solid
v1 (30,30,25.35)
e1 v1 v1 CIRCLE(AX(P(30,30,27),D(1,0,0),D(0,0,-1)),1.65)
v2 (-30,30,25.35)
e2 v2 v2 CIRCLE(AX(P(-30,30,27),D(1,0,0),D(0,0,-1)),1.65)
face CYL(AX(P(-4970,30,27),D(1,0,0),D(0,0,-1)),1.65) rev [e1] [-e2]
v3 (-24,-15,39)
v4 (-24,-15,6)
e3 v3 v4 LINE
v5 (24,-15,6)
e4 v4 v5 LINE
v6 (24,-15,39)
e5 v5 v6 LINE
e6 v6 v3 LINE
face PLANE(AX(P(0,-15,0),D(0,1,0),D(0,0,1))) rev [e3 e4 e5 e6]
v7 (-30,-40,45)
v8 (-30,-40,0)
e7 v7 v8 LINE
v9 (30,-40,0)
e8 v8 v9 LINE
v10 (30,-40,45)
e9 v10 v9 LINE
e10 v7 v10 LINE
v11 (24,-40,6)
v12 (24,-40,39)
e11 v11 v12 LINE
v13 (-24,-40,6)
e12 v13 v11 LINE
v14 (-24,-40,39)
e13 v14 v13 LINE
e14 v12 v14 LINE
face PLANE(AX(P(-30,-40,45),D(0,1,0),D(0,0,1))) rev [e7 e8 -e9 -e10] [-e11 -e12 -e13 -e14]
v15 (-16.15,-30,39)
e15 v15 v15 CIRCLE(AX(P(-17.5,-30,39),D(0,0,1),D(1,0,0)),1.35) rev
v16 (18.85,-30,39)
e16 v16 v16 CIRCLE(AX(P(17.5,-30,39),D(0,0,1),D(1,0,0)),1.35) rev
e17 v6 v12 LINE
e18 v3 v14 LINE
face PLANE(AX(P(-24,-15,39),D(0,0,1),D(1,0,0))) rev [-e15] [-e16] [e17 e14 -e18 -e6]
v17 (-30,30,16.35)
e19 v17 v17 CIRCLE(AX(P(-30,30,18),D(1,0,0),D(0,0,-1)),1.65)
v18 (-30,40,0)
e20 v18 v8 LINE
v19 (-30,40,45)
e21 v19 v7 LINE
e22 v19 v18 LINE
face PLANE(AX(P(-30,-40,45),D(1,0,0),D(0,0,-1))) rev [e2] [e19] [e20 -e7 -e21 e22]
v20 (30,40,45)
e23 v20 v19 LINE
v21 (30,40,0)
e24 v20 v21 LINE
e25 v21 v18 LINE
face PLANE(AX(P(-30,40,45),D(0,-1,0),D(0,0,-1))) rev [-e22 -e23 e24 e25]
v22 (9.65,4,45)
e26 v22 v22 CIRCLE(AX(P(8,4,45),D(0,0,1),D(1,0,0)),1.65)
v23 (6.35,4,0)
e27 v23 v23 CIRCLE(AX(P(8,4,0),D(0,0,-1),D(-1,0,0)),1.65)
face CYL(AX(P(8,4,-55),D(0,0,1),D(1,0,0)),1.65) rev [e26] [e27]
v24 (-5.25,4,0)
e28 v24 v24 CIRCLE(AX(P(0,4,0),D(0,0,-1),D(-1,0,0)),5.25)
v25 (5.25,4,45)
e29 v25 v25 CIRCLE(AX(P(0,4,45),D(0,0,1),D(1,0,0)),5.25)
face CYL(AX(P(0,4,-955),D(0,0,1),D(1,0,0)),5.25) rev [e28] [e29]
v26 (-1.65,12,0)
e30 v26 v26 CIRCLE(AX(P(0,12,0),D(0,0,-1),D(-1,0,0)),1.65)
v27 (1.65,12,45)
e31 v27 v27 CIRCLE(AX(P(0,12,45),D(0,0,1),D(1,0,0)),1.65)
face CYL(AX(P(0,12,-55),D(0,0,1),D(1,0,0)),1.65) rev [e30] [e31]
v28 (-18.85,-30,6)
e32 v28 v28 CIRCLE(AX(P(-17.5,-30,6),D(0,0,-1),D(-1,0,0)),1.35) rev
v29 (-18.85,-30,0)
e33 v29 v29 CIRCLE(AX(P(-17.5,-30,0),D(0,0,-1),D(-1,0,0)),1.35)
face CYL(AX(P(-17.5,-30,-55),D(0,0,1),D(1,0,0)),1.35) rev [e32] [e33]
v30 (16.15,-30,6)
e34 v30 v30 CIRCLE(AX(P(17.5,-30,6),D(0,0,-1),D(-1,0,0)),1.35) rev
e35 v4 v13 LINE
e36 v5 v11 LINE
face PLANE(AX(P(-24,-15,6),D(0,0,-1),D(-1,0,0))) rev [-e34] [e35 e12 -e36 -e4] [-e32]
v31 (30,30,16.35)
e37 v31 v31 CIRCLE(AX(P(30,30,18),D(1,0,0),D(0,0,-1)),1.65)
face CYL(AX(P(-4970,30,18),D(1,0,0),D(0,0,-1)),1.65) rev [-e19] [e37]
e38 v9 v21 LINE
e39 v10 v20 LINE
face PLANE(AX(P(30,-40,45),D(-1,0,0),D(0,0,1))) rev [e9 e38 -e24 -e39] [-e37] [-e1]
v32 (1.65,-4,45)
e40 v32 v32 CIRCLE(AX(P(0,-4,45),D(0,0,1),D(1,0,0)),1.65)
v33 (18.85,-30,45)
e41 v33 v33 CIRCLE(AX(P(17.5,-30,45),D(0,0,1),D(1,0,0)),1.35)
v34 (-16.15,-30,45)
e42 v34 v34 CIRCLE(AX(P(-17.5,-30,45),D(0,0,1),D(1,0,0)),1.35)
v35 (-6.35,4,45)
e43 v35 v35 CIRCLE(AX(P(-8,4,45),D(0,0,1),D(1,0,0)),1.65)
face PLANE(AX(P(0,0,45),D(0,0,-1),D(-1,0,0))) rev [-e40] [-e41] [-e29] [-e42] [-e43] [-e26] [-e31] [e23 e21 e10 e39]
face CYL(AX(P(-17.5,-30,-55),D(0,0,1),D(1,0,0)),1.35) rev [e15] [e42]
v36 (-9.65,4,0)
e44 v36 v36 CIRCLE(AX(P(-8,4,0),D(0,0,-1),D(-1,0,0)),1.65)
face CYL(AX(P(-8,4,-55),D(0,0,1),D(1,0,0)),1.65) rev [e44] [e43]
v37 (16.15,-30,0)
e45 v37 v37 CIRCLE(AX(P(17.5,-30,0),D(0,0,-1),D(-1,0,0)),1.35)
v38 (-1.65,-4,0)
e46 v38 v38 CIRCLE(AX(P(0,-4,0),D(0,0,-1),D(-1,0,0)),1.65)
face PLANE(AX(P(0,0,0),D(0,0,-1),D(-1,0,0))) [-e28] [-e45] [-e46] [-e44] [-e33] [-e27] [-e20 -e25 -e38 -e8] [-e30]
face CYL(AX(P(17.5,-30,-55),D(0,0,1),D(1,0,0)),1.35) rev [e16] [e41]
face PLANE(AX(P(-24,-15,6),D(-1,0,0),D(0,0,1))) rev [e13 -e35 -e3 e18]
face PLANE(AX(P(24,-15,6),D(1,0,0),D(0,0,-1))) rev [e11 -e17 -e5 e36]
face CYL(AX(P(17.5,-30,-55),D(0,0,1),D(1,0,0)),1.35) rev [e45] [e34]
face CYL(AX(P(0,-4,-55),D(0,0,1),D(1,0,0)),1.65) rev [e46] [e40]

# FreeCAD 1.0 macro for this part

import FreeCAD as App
import Part
import Sketcher
Q = App.Units.Quantity


def add_polygon(sketch, points):
    """Adds a closed chain of lines whose ends are joined by coincident constraints."""
    first, n = sketch.GeometryCount, len(points)
    for a, b in zip(points, points[1:] + points[:1]):
        sketch.addGeometry(Part.LineSegment(App.Vector(*a, 0), App.Vector(*b, 0)), False)
    for i in range(n):
        sketch.addConstraint(Sketcher.Constraint("Coincident", first + i, 2, first + (i + 1) % n, 1))

doc = App.newDocument("Part")
params = doc.addObject("Spreadsheet::Sheet", "Params")
for row, (alias, value) in enumerate([
    ("sketch1_width", "60 mm"),
    ("sketch1_height", "80 mm"),
    ("pad1_length", "45 mm"),
    ("sketch2_diameter", "2.7 mm"),
    ("pocket1_length", "100 mm"),
    ("sketch3_diameter", "3.3 mm"),
    ("pocket2_length", "100 mm"),
    ("sketch4_diameter", "10.5 mm"),
    ("pocket3_length", "1000 mm"),
    ("sketch5_width", "48 mm"),
    ("sketch5_height", "33 mm"),
    ("pocket4_length", "25 mm"),
    ("sketch6_diameter", "3.3 mm"),
    ("pocket5_length", "5000 mm"),
], start=1):
    params.set(f"A{row}", alias)
    params.set(f"B{row}", "=" + value)
    params.setAlias(f"B{row}", alias)

body = doc.addObject("PartDesign::Body", "Body")

# Sketch on XY plane
sketch1 = doc.addObject("Sketcher::SketchObject", "Sketch")
body.addObject(sketch1)
sketch1.AttachmentSupport = (doc.XY_Plane, [""])
sketch1.MapMode = "FlatFace"
add_polygon(sketch1, [(-30, 40), (-30, -40), (30, -40), (30, 40)])  # lines 0-3
sketch1.addConstraint([
    Sketcher.Constraint("Vertical", 0),
    Sketcher.Constraint("Horizontal", 1),
    Sketcher.Constraint("Vertical", 2),
    Sketcher.Constraint("Horizontal", 3),
    Sketcher.Constraint("Symmetric", 0, 2, 2, 2, -1, 1),
    Sketcher.Constraint("DistanceX", 1, 1, 1, 2, Q("60 mm")),
    Sketcher.Constraint("DistanceY", 0, 2, 0, 1, Q("80 mm")),
])
sketch1.setExpression("Constraints[9]", "Params.sketch1_width")
sketch1.setExpression("Constraints[10]", "Params.sketch1_height")
pad1 = doc.addObject("PartDesign::Pad", "Pad")
body.addObject(pad1)
pad1.Profile = sketch1
pad1.setExpression("Length", "Params.pad1_length")

# Sketch on XY plane
sketch2 = doc.addObject("Sketcher::SketchObject", "Sketch001")
body.addObject(sketch2)
sketch2.AttachmentSupport = (doc.XY_Plane, [""])
sketch2.MapMode = "FlatFace"
sketch2.AttachmentOffset = App.Placement(App.Vector(0, 0, 45), App.Rotation())
sketch2.addGeometry([
    Part.Circle(App.Vector(17.5, -30, 0), App.Vector(0, 0, 1), 1.4),
    Part.Circle(App.Vector(-17.5, -30, 0), App.Vector(0, 0, 1), 1.4),
], False)
sketch2.addConstraint([
    Sketcher.Constraint("Equal", 0, 1),
    Sketcher.Constraint("Symmetric", 0, 3, 1, 3, -2),
    Sketcher.Constraint("Diameter", 0, Q("2.7 mm")),
    Sketcher.Constraint("DistanceY", 0, 3, -1, 1, Q("30 mm")),
    Sketcher.Constraint("DistanceX", 1, 3, 0, 3, Q("35 mm")),
])
sketch2.setExpression("Constraints[2]", "Params.sketch2_diameter")
pocket1 = doc.addObject("PartDesign::Pocket", "Pocket")
body.addObject(pocket1)
pocket1.Profile = sketch2
pocket1.setExpression("Length", "Params.pocket1_length")

# Sketch on XY plane
sketch3 = doc.addObject("Sketcher::SketchObject", "Sketch002")
body.addObject(sketch3)
sketch3.AttachmentSupport = (doc.XY_Plane, [""])
sketch3.MapMode = "FlatFace"
sketch3.AttachmentOffset = App.Placement(App.Vector(0, 0, 45), App.Rotation())
sketch3.addGeometry([
    Part.Circle(App.Vector(8, 4, 0), App.Vector(0, 0, 1), 1.6),
    Part.Circle(App.Vector(0, 12, 0), App.Vector(0, 0, 1), 1.6),
    Part.Circle(App.Vector(-8, 4, 0), App.Vector(0, 0, 1), 1.6),
    Part.Circle(App.Vector(0, -4, 0), App.Vector(0, 0, 1), 1.6),
], False)
sketch3.addConstraint([
    Sketcher.Constraint("Equal", 0, 1),
    Sketcher.Constraint("Equal", 1, 2),
    Sketcher.Constraint("Equal", 2, 3),
    Sketcher.Constraint("Symmetric", 0, 3, 2, 3, -2),
    Sketcher.Constraint("PointOnObject", 1, 3, -2),
    Sketcher.Constraint("PointOnObject", 3, 3, -2),
    Sketcher.Constraint("Diameter", 0, Q("3.3 mm")),
    Sketcher.Constraint("DistanceX", -1, 1, 0, 3, Q("8 mm")),
    Sketcher.Constraint("DistanceY", -1, 1, 0, 3, Q("4 mm")),
    Sketcher.Constraint("DistanceY", -1, 1, 1, 3, Q("12 mm")),
    Sketcher.Constraint("DistanceY", 3, 3, -1, 1, Q("4 mm")),
])
sketch3.setExpression("Constraints[6]", "Params.sketch3_diameter")
pocket2 = doc.addObject("PartDesign::Pocket", "Pocket001")
body.addObject(pocket2)
pocket2.Profile = sketch3
pocket2.setExpression("Length", "Params.pocket2_length")

# Sketch on XY plane
sketch4 = doc.addObject("Sketcher::SketchObject", "Sketch003")
body.addObject(sketch4)
sketch4.AttachmentSupport = (doc.XY_Plane, [""])
sketch4.MapMode = "FlatFace"
sketch4.AttachmentOffset = App.Placement(App.Vector(0, 0, 45), App.Rotation())
sketch4.addGeometry(Part.Circle(App.Vector(0, 4, 0), App.Vector(0, 0, 1), 5), False)
sketch4.addConstraint([
    Sketcher.Constraint("PointOnObject", 0, 3, -2),
    Sketcher.Constraint("Diameter", 0, Q("10.5 mm")),
    Sketcher.Constraint("DistanceY", -1, 1, 0, 3, Q("4 mm")),
])
sketch4.setExpression("Constraints[1]", "Params.sketch4_diameter")
pocket3 = doc.addObject("PartDesign::Pocket", "Pocket002")
body.addObject(pocket3)
pocket3.Profile = sketch4
pocket3.setExpression("Length", "Params.pocket3_length")

# Sketch on XZ plane
sketch5 = doc.addObject("Sketcher::SketchObject", "Sketch004")
body.addObject(sketch5)
sketch5.AttachmentSupport = (doc.XZ_Plane, [""])
sketch5.MapMode = "FlatFace"
sketch5.AttachmentOffset = App.Placement(App.Vector(0, 0, 40), App.Rotation())
add_polygon(sketch5, [(-24, 39), (-24, 6), (24, 6), (24, 39)])  # lines 0-3
sketch5.addConstraint([
    Sketcher.Constraint("Vertical", 0),
    Sketcher.Constraint("Horizontal", 1),
    Sketcher.Constraint("Vertical", 2),
    Sketcher.Constraint("Horizontal", 3),
    Sketcher.Constraint("DistanceX", 1, 1, 1, 2, Q("48 mm")),
    Sketcher.Constraint("DistanceY", 0, 2, 0, 1, Q("33 mm")),
    Sketcher.Constraint("DistanceX", 0, 2, -1, 1, Q("24 mm")),
    Sketcher.Constraint("DistanceY", -1, 1, 0, 2, Q("6 mm")),
])
sketch5.setExpression("Constraints[8]", "Params.sketch5_width")
sketch5.setExpression("Constraints[9]", "Params.sketch5_height")
pocket4 = doc.addObject("PartDesign::Pocket", "Pocket003")
body.addObject(pocket4)
pocket4.Profile = sketch5
pocket4.setExpression("Length", "Params.pocket4_length")

# Sketch on YZ plane
sketch6 = doc.addObject("Sketcher::SketchObject", "Sketch005")
body.addObject(sketch6)
sketch6.AttachmentSupport = (doc.YZ_Plane, [""])
sketch6.MapMode = "FlatFace"
sketch6.AttachmentOffset = App.Placement(App.Vector(0, 0, 30), App.Rotation())
sketch6.addGeometry([
    Part.Circle(App.Vector(30, 18, 0), App.Vector(0, 0, 1), 1.6),
    Part.Circle(App.Vector(30, 27, 0), App.Vector(0, 0, 1), 1.6),
], False)
sketch6.addConstraint([
    Sketcher.Constraint("Equal", 0, 1),
    Sketcher.Constraint("Vertical", 0, 3, 1, 3),
    Sketcher.Constraint("Diameter", 0, Q("3.3 mm")),
    Sketcher.Constraint("DistanceX", -1, 1, 0, 3, Q("30 mm")),
    Sketcher.Constraint("DistanceY", -1, 1, 0, 3, Q("18 mm")),
    Sketcher.Constraint("DistanceY", -1, 1, 1, 3, Q("27 mm")),
])
sketch6.setExpression("Constraints[2]", "Params.sketch6_diameter")
pocket5 = doc.addObject("PartDesign::Pocket", "Pocket004")
body.addObject(pocket5)
pocket5.Profile = sketch6
pocket5.setExpression("Length", "Params.pocket5_length")

doc.recompute()
